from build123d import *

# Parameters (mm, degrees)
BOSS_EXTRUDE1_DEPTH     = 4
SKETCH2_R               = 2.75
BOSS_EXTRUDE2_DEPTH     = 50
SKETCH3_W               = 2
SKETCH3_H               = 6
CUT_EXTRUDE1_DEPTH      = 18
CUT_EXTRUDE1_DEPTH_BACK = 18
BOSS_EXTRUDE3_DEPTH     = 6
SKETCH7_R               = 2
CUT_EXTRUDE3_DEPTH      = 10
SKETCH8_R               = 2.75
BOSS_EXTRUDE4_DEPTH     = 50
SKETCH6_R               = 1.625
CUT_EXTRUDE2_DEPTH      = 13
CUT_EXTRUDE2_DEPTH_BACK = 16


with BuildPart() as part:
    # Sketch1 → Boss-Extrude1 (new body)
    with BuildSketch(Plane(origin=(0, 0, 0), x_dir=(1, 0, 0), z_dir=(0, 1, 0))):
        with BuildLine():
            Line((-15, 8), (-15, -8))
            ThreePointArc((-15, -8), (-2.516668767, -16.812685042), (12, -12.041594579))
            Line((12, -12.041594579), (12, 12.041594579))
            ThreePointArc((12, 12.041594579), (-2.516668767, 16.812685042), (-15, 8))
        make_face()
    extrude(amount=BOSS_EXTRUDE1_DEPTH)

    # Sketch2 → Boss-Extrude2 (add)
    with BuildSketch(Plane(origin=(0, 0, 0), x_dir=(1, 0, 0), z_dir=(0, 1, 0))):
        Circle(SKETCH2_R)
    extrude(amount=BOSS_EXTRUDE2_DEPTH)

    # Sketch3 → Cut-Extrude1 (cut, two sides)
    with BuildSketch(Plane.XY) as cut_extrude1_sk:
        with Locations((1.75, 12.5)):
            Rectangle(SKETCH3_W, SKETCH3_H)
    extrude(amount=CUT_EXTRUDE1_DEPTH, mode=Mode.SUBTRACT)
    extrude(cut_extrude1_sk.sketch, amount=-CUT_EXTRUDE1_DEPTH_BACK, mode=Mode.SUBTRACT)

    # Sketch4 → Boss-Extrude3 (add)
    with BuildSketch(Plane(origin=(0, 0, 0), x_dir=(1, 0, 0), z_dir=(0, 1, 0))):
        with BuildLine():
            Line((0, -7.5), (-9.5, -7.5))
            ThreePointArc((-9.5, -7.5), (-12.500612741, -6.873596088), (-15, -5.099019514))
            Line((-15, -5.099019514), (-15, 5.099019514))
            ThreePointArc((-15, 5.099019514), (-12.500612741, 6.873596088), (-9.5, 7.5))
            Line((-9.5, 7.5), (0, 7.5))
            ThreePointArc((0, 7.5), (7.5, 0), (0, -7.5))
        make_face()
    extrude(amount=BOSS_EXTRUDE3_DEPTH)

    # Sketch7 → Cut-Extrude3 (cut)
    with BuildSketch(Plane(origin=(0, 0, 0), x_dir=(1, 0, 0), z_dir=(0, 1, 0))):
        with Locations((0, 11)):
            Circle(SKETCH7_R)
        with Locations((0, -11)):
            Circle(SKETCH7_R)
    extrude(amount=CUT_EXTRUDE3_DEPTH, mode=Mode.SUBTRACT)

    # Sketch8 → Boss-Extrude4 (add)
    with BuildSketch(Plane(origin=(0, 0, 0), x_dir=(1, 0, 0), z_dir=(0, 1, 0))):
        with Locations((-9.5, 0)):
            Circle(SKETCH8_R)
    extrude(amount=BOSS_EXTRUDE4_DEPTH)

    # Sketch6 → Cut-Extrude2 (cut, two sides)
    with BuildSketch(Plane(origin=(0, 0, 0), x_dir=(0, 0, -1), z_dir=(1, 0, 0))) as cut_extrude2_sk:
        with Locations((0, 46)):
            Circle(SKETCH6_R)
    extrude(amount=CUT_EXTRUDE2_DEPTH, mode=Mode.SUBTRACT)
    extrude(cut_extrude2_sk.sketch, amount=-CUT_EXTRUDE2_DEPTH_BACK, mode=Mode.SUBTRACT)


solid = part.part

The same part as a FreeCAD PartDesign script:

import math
import FreeCAD as App
import Part
import Sketcher

V = App.Vector
Q = App.Units.Quantity


def add_polygon(sketch, points):
    """Adds a closed chain of lines whose ends are joined by coincident constraints."""
    first, n = sketch.GeometryCount, len(points)
    for a, b in zip(points, points[1:] + points[:1]):
        sketch.addGeometry(Part.LineSegment(App.Vector(*a, 0), App.Vector(*b, 0)), False)
    for i in range(n):
        sketch.addConstraint(Sketcher.Constraint("Coincident", first + i, 2, first + (i + 1) % n, 1))

doc = App.newDocument("Part")
body = doc.addObject("PartDesign::Body", "Body")

sketch1 = doc.addObject("Sketcher::SketchObject", "Sketch")
body.addObject(sketch1)
sketch1.AttachmentSupport = (doc.XZ_Plane, [""])
sketch1.MapMode = "FlatFace"
sketch1.addGeometry([
    Part.LineSegment(V(-15, -8, 0), V(-15, 8, 0)),
    Part.ArcOfCircle(Part.Circle(V(0, 0, 0), V(0, 0, 1), 17), math.radians(45), math.radians(152)),
    Part.LineSegment(V(12, 12, 0), V(12, -12, 0)),
    Part.ArcOfCircle(Part.Circle(V(0, 0, 0), V(0, 0, 1), 17), math.radians(-152), math.radians(-45)),
], False)
sketch1.addConstraint([
    Sketcher.Constraint("Coincident", 0, 2, 1, 2),
    Sketcher.Constraint("Coincident", 1, 1, 2, 1),
    Sketcher.Constraint("Coincident", 2, 2, 3, 2),
    Sketcher.Constraint("Coincident", 3, 1, 0, 1),
    Sketcher.Constraint("Vertical", 0),
    Sketcher.Constraint("Vertical", 2),
    Sketcher.Constraint("Coincident", 1, 3, -1, 1),
    Sketcher.Constraint("Coincident", 3, 3, -1, 1),
    Sketcher.Constraint("Equal", 1, 3),
    Sketcher.Constraint("Radius", 1, Q("17 mm")),
    Sketcher.Constraint("DistanceY", 0, 1, 0, 2, Q("16 mm")),
    Sketcher.Constraint("DistanceX", -1, 1, 1, 1, Q("12 mm")),
])
pad1 = doc.addObject("PartDesign::Pad", "Pad")
body.addObject(pad1)
pad1.Profile = sketch1
pad1.Length = 4
pad1.Reversed = True

sketch2 = doc.addObject("Sketcher::SketchObject", "Sketch001")
body.addObject(sketch2)
sketch2.AttachmentSupport = (doc.XZ_Plane, [""])
sketch2.MapMode = "FlatFace"
sketch2.addGeometry(Part.Circle(V(0, 0, 0), V(0, 0, 1), 2.8), False)
sketch2.addConstraint([
    Sketcher.Constraint("Coincident", 0, 3, -1, 1),
    Sketcher.Constraint("Diameter", 0, Q("5.5 mm")),
])
pad2 = doc.addObject("PartDesign::Pad", "Pad001")
body.addObject(pad2)
pad2.Profile = sketch2
pad2.Length = 50
pad2.Reversed = True

sketch3 = doc.addObject("Sketcher::SketchObject", "Sketch002")
body.addObject(sketch3)
sketch3.AttachmentSupport = (doc.XY_Plane, [""])
sketch3.MapMode = "FlatFace"
add_polygon(sketch3, [(0.8, 15.5), (0.8, 9.5), (2.8, 9.5), (2.8, 15.5)])
sketch3.addConstraint([
    Sketcher.Constraint("Vertical", 0),
    Sketcher.Constraint("Horizontal", 1),
    Sketcher.Constraint("Vertical", 2),
    Sketcher.Constraint("Horizontal", 3),
    Sketcher.Constraint("DistanceX", 1, 1, 1, 2, Q("2 mm")),
    Sketcher.Constraint("DistanceY", 0, 2, 0, 1, Q("6 mm")),
    Sketcher.Constraint("DistanceY", -1, 1, 0, 2, Q("9.5 mm")),
    Sketcher.Constraint("DistanceX", -1, 1, 0, 2, Q("0.75 mm")),
])
pocket1 = doc.addObject("PartDesign::Pocket", "Pocket")
body.addObject(pocket1)
pocket1.Profile = sketch3
pocket1.Type = "ThroughAll"
pocket1.Midplane = True

sketch4 = doc.addObject("Sketcher::SketchObject", "Sketch003")
body.addObject(sketch4)
sketch4.AttachmentSupport = (doc.XZ_Plane, [""])
sketch4.MapMode = "FlatFace"
sketch4.addGeometry([
    Part.LineSegment(V(-10, 8, 0), V(0, 8, 0)),
    Part.ArcOfCircle(Part.Circle(V(0, 0, 0), V(0, 0, 1), 8), math.radians(-90), math.radians(90)),
    Part.LineSegment(V(0, -8, 0), V(-10, -8, 0)),
    Part.ArcOfCircle(Part.Circle(V(-10, 0, 0), V(0, 0, 1), 8), math.radians(-137), math.radians(-90)),
    Part.LineSegment(V(-15, -5, 0), V(-15, 5, 0)),
    Part.ArcOfCircle(Part.Circle(V(-10, 0, 0), V(0, 0, 1), 8), math.radians(90), math.radians(137)),
], False)
sketch4.addConstraint([
    Sketcher.Constraint("Tangent", 0, 2, 1, 2),
    Sketcher.Constraint("Tangent", 1, 1, 2, 1),
    Sketcher.Constraint("Tangent", 2, 2, 3, 2),
    Sketcher.Constraint("Coincident", 3, 1, 4, 1),
    Sketcher.Constraint("Coincident", 4, 2, 5, 2),
    Sketcher.Constraint("Tangent", 5, 1, 0, 1),
    Sketcher.Constraint("Horizontal", 0),
    Sketcher.Constraint("Horizontal", 2),
    Sketcher.Constraint("Vertical", 4),
    Sketcher.Constraint("Coincident", 1, 3, -1, 1),
    Sketcher.Constraint("Coincident", 5, 3, 3, 3),
    Sketcher.Constraint("Equal", 1, 3),
    Sketcher.Constraint("Radius", 1, Q("7.5 mm")),
    Sketcher.Constraint("DistanceX", 0, 1, 0, 2, Q("9.5 mm")),
    Sketcher.Constraint("DistanceX", 3, 1, -1, 1, Q("15 mm")),
])
pad3 = doc.addObject("PartDesign::Pad", "Pad002")
body.addObject(pad3)
pad3.Profile = sketch4
pad3.Length = 6
pad3.Reversed = True

sketch5 = doc.addObject("Sketcher::SketchObject", "Sketch004")
body.addObject(sketch5)
sketch5.AttachmentSupport = (doc.XZ_Plane, [""])
sketch5.MapMode = "FlatFace"
sketch5.addGeometry([
    Part.Circle(V(0, -11, 0), V(0, 0, 1), 2),
    Part.Circle(V(0, 11, 0), V(0, 0, 1), 2),
], False)
sketch5.addConstraint([
    Sketcher.Constraint("Equal", 0, 1),
    Sketcher.Constraint("Symmetric", 0, 3, 1, 3, -1, 1),
    Sketcher.Constraint("PointOnObject", 0, 3, -2),
    Sketcher.Constraint("Diameter", 0, Q("4 mm")),
    Sketcher.Constraint("DistanceY", 0, 3, -1, 1, Q("11 mm")),
])
pocket2 = doc.addObject("PartDesign::Pocket", "Pocket001")
body.addObject(pocket2)
pocket2.Profile = sketch5
pocket2.Length = 10

sketch6 = doc.addObject("Sketcher::SketchObject", "Sketch005")
body.addObject(sketch6)
sketch6.AttachmentSupport = (doc.XZ_Plane, [""])
sketch6.MapMode = "FlatFace"
sketch6.addGeometry(Part.Circle(V(-9.5, 0, 0), V(0, 0, 1), 2.8), False)
sketch6.addConstraint([
    Sketcher.Constraint("PointOnObject", 0, 3, -1),
    Sketcher.Constraint("Diameter", 0, Q("5.5 mm")),
    Sketcher.Constraint("DistanceX", 0, 3, -1, 1, Q("9.5 mm")),
])
pad4 = doc.addObject("PartDesign::Pad", "Pad003")
body.addObject(pad4)
pad4.Profile = sketch6
pad4.Length = 50
pad4.Reversed = True

sketch7 = doc.addObject("Sketcher::SketchObject", "Sketch006")
body.addObject(sketch7)
sketch7.AttachmentSupport = (doc.YZ_Plane, [""])
sketch7.MapMode = "FlatFace"
sketch7.addGeometry(Part.Circle(V(46, 0, 0), V(0, 0, 1), 1.6), False)
sketch7.addConstraint([
    Sketcher.Constraint("PointOnObject", 0, 3, -1),
    Sketcher.Constraint("Diameter", 0, Q("3.25 mm")),
    Sketcher.Constraint("DistanceX", -1, 1, 0, 3, Q("46 mm")),
])
pocket3 = doc.addObject("PartDesign::Pocket", "Pocket002")
body.addObject(pocket3)
pocket3.Profile = sketch7
pocket3.Type = "ThroughAll"
pocket3.Midplane = True

doc.recompute()
